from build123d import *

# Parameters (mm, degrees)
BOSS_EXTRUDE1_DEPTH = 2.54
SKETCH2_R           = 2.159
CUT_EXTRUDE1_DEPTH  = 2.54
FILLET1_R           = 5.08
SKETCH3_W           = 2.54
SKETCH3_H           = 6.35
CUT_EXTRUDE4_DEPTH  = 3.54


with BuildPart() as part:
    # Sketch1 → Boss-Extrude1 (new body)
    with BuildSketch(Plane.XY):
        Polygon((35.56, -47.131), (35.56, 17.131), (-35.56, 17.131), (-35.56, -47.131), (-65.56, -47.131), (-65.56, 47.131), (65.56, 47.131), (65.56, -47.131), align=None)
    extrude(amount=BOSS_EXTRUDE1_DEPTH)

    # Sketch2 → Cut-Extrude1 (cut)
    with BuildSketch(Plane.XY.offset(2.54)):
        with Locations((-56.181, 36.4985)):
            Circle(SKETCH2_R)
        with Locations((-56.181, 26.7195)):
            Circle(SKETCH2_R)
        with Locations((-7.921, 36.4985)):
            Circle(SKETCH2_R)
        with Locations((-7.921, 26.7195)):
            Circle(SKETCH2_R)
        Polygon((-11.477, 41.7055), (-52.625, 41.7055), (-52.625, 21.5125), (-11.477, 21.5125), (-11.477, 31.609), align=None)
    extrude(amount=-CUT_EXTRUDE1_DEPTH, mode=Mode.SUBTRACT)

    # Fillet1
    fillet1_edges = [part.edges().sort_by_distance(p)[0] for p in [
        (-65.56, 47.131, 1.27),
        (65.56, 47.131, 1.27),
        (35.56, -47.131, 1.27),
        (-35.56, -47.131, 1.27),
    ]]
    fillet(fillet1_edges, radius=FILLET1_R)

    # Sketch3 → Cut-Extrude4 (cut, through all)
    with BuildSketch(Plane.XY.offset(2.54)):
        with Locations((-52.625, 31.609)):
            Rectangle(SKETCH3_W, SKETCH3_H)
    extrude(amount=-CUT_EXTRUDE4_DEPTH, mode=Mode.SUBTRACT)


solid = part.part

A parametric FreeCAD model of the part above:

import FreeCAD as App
import Part
import Sketcher

V = App.Vector
Q = App.Units.Quantity


def edges_at(feature, points):
    """Names of the edges that pass closest to the given points."""
    edges = feature.Shape.Edges
    near = lambda p: min(range(len(edges)), key=lambda i: edges[i].distToShape(Part.Vertex(*p))[0])
    return sorted({f"Edge{near(p) + 1}" for p in points})

doc = App.newDocument("Part")
body = doc.addObject("PartDesign::Body", "Body")

# Sketch on XY plane
sketch1 = body.newObject("Sketcher::SketchObject", "Sketch")
sketch1.AttachmentSupport = (doc.getObject("XY_Plane"), [""])
sketch1.MapMode = "FlatFace"
sketch1.addGeometry(Part.LineSegment(V(36, 17, 0), V(36, -47, 0)), False)
sketch1.addGeometry(Part.LineSegment(V(36, -47, 0), V(66, -47, 0)), False)
sketch1.addGeometry(Part.LineSegment(V(66, -47, 0), V(66, 47, 0)), False)
sketch1.addGeometry(Part.LineSegment(V(66, 47, 0), V(-66, 47, 0)), False)
sketch1.addGeometry(Part.LineSegment(V(-66, 47, 0), V(-66, -47, 0)), False)
sketch1.addGeometry(Part.LineSegment(V(-66, -47, 0), V(-36, -47, 0)), False)
sketch1.addGeometry(Part.LineSegment(V(-36, -47, 0), V(-36, 17, 0)), False)
sketch1.addGeometry(Part.LineSegment(V(-36, 17, 0), V(36, 17, 0)), False)
sketch1.addConstraint(Sketcher.Constraint("Coincident", 0, 2, 1, 1))
sketch1.addConstraint(Sketcher.Constraint("Coincident", 1, 2, 2, 1))
sketch1.addConstraint(Sketcher.Constraint("Coincident", 2, 2, 3, 1))
sketch1.addConstraint(Sketcher.Constraint("Coincident", 3, 2, 4, 1))
sketch1.addConstraint(Sketcher.Constraint("Coincident", 4, 2, 5, 1))
sketch1.addConstraint(Sketcher.Constraint("Coincident", 5, 2, 6, 1))
sketch1.addConstraint(Sketcher.Constraint("Coincident", 6, 2, 7, 1))
sketch1.addConstraint(Sketcher.Constraint("Coincident", 7, 2, 0, 1))
sketch1.addConstraint(Sketcher.Constraint("Vertical", 0))
sketch1.addConstraint(Sketcher.Constraint("Horizontal", 1))
sketch1.addConstraint(Sketcher.Constraint("Vertical", 2))
sketch1.addConstraint(Sketcher.Constraint("Horizontal", 3))
sketch1.addConstraint(Sketcher.Constraint("Vertical", 4))
sketch1.addConstraint(Sketcher.Constraint("Horizontal", 5))
sketch1.addConstraint(Sketcher.Constraint("Vertical", 6))
sketch1.addConstraint(Sketcher.Constraint("Horizontal", 7))
sketch1.addConstraint(Sketcher.Constraint("Symmetric", 1, 2, 3, 2, -1, 1))
sketch1.addConstraint(Sketcher.Constraint("Symmetric", 0, 2, 5, 2, -2))
sketch1.addConstraint(Sketcher.Constraint("DistanceX", 7, 1, 7, 2, Q("2.8 in")))
sketch1.addConstraint(Sketcher.Constraint("DistanceY", 0, 2, 0, 1, Q("2.53 in")))
sketch1.addConstraint(Sketcher.Constraint("DistanceX", 1, 1, 1, 2, Q("30 mm")))
sketch1.addConstraint(Sketcher.Constraint("DistanceY", 2, 1, 2, 2, Q("94.262 mm")))
pad1 = body.newObject("PartDesign::Pad", "Pad")
pad1.Profile = sketch1
pad1.Length = Q("0.1 in")

# Sketch on XY plane
sketch2 = body.newObject("Sketcher::SketchObject", "Sketch001")
sketch2.AttachmentSupport = (doc.getObject("XY_Plane"), [""])
sketch2.MapMode = "FlatFace"
sketch2.AttachmentOffset = App.Placement(V(0, 0, 0.1 * 25.4), App.Rotation())
sketch2.addGeometry(Part.Circle(V(-56.2, 36.5, 0), V(0, 0, 1), 2.2), False)
sketch2.addGeometry(Part.Circle(V(-56.2, 26.7, 0), V(0, 0, 1), 2.2), False)
sketch2.addGeometry(Part.Circle(V(-7.9, 36.5, 0), V(0, 0, 1), 2.2), False)
sketch2.addGeometry(Part.Circle(V(-7.9, 26.7, 0), V(0, 0, 1), 2.2), False)
sketch2.addGeometry(Part.LineSegment(V(-11.5, 41.7, 0), V(-52.6, 41.7, 0)), False)
sketch2.addGeometry(Part.LineSegment(V(-52.6, 41.7, 0), V(-52.6, 21.5, 0)), False)
sketch2.addGeometry(Part.LineSegment(V(-52.6, 21.5, 0), V(-11.5, 21.5, 0)), False)
sketch2.addGeometry(Part.LineSegment(V(-11.5, 21.5, 0), V(-11.5, 41.7, 0)), False)
sketch2.addConstraint(Sketcher.Constraint("Coincident", 4, 2, 5, 1))
sketch2.addConstraint(Sketcher.Constraint("Coincident", 5, 2, 6, 1))
sketch2.addConstraint(Sketcher.Constraint("Coincident", 6, 2, 7, 1))
sketch2.addConstraint(Sketcher.Constraint("Coincident", 7, 2, 4, 1))
sketch2.addConstraint(Sketcher.Constraint("Horizontal", 4))
sketch2.addConstraint(Sketcher.Constraint("Vertical", 5))
sketch2.addConstraint(Sketcher.Constraint("Horizontal", 6))
sketch2.addConstraint(Sketcher.Constraint("Vertical", 7))
sketch2.addConstraint(Sketcher.Constraint("Equal", 0, 1))
sketch2.addConstraint(Sketcher.Constraint("Equal", 1, 2))
sketch2.addConstraint(Sketcher.Constraint("Equal", 2, 3))
sketch2.addConstraint(Sketcher.Constraint("Horizontal", 0, 3, 2, 3))
sketch2.addConstraint(Sketcher.Constraint("Horizontal", 1, 3, 3, 3))
sketch2.addConstraint(Sketcher.Constraint("Vertical", 0, 3, 1, 3))
sketch2.addConstraint(Sketcher.Constraint("Vertical", 2, 3, 3, 3))
sketch2.addConstraint(Sketcher.Constraint("Diameter", 0, Q("0.17 in")))
sketch2.addConstraint(Sketcher.Constraint("DistanceX", 4, 2, 4, 1, Q("1.62 in")))
sketch2.addConstraint(Sketcher.Constraint("DistanceX", 0, 3, 2, 3, Q("1.9 in")))
sketch2.addConstraint(Sketcher.Constraint("DistanceY", 5, 2, 5, 1, Q("0.795 in")))
sketch2.addConstraint(Sketcher.Constraint("DistanceX", 0, 3, 4, 2, Q("0.14 in")))
sketch2.addConstraint(Sketcher.Constraint("DistanceY", 1, 3, 4, 2, Q("0.59 in")))
sketch2.addConstraint(Sketcher.Constraint("DistanceY", 5, 2, 0, 3, Q("0.59 in")))
sketch2.addConstraint(Sketcher.Constraint("DistanceX", 0, 3, -1, 1, Q("56.181 mm")))
sketch2.addConstraint(Sketcher.Constraint("DistanceY", -1, 1, 0, 3, Q("36.4985 mm")))
pocket1 = body.newObject("PartDesign::Pocket", "Pocket")
pocket1.Profile = sketch2
pocket1.Length = Q("0.1 in")
doc.recompute()

fillet = body.newObject("PartDesign::Fillet", "Fillet")
fillet.Base = (pocket1, edges_at(pocket1, [
    (-65.56, 47.131, 1.27),
    (65.56, 47.131, 1.27),
    (35.56, -47.131, 1.27),
    (-35.56, -47.131, 1.27),
]))
fillet.Radius = Q("0.2 in")

# Sketch on XY plane
sketch3 = body.newObject("Sketcher::SketchObject", "Sketch002")
sketch3.AttachmentSupport = (doc.getObject("XY_Plane"), [""])
sketch3.MapMode = "FlatFace"
sketch3.AttachmentOffset = App.Placement(V(0, 0, 0.1 * 25.4), App.Rotation())
sketch3.addGeometry(Part.LineSegment(V(-53.9, 34.8, 0), V(-53.9, 28.4, 0)), False)
sketch3.addGeometry(Part.LineSegment(V(-53.9, 28.4, 0), V(-51.4, 28.4, 0)), False)
sketch3.addGeometry(Part.LineSegment(V(-51.4, 28.4, 0), V(-51.4, 34.8, 0)), False)
sketch3.addGeometry(Part.LineSegment(V(-51.4, 34.8, 0), V(-53.9, 34.8, 0)), False)
sketch3.addConstraint(Sketcher.Constraint("Coincident", 0, 2, 1, 1))
sketch3.addConstraint(Sketcher.Constraint("Coincident", 1, 2, 2, 1))
sketch3.addConstraint(Sketcher.Constraint("Coincident", 2, 2, 3, 1))
sketch3.addConstraint(Sketcher.Constraint("Coincident", 3, 2, 0, 1))
sketch3.addConstraint(Sketcher.Constraint("Vertical", 0))
sketch3.addConstraint(Sketcher.Constraint("Horizontal", 1))
sketch3.addConstraint(Sketcher.Constraint("Vertical", 2))
sketch3.addConstraint(Sketcher.Constraint("Horizontal", 3))
sketch3.addConstraint(Sketcher.Constraint("DistanceX", 1, 1, 1, 2, Q("0.1 in")))
sketch3.addConstraint(Sketcher.Constraint("DistanceY", 0, 2, 0, 1, Q("0.25 in")))
sketch3.addConstraint(Sketcher.Constraint("DistanceX", 0, 2, -1, 1, Q("53.895 mm")))
sketch3.addConstraint(Sketcher.Constraint("DistanceY", -1, 1, 0, 2, Q("28.434 mm")))
pocket2 = body.newObject("PartDesign::Pocket", "Pocket001")
pocket2.Profile = sketch3
pocket2.Type = "ThroughAll"

doc.recompute()
